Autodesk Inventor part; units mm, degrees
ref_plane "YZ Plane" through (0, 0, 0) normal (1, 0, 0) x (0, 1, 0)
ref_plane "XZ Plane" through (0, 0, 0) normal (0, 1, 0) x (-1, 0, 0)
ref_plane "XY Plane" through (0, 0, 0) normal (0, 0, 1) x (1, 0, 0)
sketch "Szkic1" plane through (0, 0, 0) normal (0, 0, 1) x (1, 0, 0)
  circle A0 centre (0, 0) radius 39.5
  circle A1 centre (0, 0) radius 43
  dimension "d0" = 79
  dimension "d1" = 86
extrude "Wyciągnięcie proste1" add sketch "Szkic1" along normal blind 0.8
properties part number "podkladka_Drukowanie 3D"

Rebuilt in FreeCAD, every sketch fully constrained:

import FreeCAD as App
import Part
import Sketcher

doc = App.newDocument("Part")
body = doc.addObject("PartDesign::Body", "Body")

sketch1 = body.newObject("Sketcher::SketchObject", "Sketch")
sketch1.AttachmentSupport = (doc.getObject("XY_Plane"), [""])
sketch1.MapMode = "FlatFace"
sketch1.addGeometry(Part.Circle(App.Vector(0, 0, 0), App.Vector(0, 0, 1), 43), False)
sketch1.addGeometry(Part.Circle(App.Vector(0, 0, 0), App.Vector(0, 0, 1), 40), False)
sketch1.addConstraint(Sketcher.Constraint("Coincident", 0, 3, -1, 1))
sketch1.addConstraint(Sketcher.Constraint("Coincident", 1, 3, -1, 1))
sketch1.addConstraint(Sketcher.Constraint("Diameter", 0, 86.0))
sketch1.addConstraint(Sketcher.Constraint("Diameter", 1, 79.0))
pad1 = body.newObject("PartDesign::Pad", "Pad")
pad1.Profile = sketch1
pad1.Length = 0.8

doc.recompute()
